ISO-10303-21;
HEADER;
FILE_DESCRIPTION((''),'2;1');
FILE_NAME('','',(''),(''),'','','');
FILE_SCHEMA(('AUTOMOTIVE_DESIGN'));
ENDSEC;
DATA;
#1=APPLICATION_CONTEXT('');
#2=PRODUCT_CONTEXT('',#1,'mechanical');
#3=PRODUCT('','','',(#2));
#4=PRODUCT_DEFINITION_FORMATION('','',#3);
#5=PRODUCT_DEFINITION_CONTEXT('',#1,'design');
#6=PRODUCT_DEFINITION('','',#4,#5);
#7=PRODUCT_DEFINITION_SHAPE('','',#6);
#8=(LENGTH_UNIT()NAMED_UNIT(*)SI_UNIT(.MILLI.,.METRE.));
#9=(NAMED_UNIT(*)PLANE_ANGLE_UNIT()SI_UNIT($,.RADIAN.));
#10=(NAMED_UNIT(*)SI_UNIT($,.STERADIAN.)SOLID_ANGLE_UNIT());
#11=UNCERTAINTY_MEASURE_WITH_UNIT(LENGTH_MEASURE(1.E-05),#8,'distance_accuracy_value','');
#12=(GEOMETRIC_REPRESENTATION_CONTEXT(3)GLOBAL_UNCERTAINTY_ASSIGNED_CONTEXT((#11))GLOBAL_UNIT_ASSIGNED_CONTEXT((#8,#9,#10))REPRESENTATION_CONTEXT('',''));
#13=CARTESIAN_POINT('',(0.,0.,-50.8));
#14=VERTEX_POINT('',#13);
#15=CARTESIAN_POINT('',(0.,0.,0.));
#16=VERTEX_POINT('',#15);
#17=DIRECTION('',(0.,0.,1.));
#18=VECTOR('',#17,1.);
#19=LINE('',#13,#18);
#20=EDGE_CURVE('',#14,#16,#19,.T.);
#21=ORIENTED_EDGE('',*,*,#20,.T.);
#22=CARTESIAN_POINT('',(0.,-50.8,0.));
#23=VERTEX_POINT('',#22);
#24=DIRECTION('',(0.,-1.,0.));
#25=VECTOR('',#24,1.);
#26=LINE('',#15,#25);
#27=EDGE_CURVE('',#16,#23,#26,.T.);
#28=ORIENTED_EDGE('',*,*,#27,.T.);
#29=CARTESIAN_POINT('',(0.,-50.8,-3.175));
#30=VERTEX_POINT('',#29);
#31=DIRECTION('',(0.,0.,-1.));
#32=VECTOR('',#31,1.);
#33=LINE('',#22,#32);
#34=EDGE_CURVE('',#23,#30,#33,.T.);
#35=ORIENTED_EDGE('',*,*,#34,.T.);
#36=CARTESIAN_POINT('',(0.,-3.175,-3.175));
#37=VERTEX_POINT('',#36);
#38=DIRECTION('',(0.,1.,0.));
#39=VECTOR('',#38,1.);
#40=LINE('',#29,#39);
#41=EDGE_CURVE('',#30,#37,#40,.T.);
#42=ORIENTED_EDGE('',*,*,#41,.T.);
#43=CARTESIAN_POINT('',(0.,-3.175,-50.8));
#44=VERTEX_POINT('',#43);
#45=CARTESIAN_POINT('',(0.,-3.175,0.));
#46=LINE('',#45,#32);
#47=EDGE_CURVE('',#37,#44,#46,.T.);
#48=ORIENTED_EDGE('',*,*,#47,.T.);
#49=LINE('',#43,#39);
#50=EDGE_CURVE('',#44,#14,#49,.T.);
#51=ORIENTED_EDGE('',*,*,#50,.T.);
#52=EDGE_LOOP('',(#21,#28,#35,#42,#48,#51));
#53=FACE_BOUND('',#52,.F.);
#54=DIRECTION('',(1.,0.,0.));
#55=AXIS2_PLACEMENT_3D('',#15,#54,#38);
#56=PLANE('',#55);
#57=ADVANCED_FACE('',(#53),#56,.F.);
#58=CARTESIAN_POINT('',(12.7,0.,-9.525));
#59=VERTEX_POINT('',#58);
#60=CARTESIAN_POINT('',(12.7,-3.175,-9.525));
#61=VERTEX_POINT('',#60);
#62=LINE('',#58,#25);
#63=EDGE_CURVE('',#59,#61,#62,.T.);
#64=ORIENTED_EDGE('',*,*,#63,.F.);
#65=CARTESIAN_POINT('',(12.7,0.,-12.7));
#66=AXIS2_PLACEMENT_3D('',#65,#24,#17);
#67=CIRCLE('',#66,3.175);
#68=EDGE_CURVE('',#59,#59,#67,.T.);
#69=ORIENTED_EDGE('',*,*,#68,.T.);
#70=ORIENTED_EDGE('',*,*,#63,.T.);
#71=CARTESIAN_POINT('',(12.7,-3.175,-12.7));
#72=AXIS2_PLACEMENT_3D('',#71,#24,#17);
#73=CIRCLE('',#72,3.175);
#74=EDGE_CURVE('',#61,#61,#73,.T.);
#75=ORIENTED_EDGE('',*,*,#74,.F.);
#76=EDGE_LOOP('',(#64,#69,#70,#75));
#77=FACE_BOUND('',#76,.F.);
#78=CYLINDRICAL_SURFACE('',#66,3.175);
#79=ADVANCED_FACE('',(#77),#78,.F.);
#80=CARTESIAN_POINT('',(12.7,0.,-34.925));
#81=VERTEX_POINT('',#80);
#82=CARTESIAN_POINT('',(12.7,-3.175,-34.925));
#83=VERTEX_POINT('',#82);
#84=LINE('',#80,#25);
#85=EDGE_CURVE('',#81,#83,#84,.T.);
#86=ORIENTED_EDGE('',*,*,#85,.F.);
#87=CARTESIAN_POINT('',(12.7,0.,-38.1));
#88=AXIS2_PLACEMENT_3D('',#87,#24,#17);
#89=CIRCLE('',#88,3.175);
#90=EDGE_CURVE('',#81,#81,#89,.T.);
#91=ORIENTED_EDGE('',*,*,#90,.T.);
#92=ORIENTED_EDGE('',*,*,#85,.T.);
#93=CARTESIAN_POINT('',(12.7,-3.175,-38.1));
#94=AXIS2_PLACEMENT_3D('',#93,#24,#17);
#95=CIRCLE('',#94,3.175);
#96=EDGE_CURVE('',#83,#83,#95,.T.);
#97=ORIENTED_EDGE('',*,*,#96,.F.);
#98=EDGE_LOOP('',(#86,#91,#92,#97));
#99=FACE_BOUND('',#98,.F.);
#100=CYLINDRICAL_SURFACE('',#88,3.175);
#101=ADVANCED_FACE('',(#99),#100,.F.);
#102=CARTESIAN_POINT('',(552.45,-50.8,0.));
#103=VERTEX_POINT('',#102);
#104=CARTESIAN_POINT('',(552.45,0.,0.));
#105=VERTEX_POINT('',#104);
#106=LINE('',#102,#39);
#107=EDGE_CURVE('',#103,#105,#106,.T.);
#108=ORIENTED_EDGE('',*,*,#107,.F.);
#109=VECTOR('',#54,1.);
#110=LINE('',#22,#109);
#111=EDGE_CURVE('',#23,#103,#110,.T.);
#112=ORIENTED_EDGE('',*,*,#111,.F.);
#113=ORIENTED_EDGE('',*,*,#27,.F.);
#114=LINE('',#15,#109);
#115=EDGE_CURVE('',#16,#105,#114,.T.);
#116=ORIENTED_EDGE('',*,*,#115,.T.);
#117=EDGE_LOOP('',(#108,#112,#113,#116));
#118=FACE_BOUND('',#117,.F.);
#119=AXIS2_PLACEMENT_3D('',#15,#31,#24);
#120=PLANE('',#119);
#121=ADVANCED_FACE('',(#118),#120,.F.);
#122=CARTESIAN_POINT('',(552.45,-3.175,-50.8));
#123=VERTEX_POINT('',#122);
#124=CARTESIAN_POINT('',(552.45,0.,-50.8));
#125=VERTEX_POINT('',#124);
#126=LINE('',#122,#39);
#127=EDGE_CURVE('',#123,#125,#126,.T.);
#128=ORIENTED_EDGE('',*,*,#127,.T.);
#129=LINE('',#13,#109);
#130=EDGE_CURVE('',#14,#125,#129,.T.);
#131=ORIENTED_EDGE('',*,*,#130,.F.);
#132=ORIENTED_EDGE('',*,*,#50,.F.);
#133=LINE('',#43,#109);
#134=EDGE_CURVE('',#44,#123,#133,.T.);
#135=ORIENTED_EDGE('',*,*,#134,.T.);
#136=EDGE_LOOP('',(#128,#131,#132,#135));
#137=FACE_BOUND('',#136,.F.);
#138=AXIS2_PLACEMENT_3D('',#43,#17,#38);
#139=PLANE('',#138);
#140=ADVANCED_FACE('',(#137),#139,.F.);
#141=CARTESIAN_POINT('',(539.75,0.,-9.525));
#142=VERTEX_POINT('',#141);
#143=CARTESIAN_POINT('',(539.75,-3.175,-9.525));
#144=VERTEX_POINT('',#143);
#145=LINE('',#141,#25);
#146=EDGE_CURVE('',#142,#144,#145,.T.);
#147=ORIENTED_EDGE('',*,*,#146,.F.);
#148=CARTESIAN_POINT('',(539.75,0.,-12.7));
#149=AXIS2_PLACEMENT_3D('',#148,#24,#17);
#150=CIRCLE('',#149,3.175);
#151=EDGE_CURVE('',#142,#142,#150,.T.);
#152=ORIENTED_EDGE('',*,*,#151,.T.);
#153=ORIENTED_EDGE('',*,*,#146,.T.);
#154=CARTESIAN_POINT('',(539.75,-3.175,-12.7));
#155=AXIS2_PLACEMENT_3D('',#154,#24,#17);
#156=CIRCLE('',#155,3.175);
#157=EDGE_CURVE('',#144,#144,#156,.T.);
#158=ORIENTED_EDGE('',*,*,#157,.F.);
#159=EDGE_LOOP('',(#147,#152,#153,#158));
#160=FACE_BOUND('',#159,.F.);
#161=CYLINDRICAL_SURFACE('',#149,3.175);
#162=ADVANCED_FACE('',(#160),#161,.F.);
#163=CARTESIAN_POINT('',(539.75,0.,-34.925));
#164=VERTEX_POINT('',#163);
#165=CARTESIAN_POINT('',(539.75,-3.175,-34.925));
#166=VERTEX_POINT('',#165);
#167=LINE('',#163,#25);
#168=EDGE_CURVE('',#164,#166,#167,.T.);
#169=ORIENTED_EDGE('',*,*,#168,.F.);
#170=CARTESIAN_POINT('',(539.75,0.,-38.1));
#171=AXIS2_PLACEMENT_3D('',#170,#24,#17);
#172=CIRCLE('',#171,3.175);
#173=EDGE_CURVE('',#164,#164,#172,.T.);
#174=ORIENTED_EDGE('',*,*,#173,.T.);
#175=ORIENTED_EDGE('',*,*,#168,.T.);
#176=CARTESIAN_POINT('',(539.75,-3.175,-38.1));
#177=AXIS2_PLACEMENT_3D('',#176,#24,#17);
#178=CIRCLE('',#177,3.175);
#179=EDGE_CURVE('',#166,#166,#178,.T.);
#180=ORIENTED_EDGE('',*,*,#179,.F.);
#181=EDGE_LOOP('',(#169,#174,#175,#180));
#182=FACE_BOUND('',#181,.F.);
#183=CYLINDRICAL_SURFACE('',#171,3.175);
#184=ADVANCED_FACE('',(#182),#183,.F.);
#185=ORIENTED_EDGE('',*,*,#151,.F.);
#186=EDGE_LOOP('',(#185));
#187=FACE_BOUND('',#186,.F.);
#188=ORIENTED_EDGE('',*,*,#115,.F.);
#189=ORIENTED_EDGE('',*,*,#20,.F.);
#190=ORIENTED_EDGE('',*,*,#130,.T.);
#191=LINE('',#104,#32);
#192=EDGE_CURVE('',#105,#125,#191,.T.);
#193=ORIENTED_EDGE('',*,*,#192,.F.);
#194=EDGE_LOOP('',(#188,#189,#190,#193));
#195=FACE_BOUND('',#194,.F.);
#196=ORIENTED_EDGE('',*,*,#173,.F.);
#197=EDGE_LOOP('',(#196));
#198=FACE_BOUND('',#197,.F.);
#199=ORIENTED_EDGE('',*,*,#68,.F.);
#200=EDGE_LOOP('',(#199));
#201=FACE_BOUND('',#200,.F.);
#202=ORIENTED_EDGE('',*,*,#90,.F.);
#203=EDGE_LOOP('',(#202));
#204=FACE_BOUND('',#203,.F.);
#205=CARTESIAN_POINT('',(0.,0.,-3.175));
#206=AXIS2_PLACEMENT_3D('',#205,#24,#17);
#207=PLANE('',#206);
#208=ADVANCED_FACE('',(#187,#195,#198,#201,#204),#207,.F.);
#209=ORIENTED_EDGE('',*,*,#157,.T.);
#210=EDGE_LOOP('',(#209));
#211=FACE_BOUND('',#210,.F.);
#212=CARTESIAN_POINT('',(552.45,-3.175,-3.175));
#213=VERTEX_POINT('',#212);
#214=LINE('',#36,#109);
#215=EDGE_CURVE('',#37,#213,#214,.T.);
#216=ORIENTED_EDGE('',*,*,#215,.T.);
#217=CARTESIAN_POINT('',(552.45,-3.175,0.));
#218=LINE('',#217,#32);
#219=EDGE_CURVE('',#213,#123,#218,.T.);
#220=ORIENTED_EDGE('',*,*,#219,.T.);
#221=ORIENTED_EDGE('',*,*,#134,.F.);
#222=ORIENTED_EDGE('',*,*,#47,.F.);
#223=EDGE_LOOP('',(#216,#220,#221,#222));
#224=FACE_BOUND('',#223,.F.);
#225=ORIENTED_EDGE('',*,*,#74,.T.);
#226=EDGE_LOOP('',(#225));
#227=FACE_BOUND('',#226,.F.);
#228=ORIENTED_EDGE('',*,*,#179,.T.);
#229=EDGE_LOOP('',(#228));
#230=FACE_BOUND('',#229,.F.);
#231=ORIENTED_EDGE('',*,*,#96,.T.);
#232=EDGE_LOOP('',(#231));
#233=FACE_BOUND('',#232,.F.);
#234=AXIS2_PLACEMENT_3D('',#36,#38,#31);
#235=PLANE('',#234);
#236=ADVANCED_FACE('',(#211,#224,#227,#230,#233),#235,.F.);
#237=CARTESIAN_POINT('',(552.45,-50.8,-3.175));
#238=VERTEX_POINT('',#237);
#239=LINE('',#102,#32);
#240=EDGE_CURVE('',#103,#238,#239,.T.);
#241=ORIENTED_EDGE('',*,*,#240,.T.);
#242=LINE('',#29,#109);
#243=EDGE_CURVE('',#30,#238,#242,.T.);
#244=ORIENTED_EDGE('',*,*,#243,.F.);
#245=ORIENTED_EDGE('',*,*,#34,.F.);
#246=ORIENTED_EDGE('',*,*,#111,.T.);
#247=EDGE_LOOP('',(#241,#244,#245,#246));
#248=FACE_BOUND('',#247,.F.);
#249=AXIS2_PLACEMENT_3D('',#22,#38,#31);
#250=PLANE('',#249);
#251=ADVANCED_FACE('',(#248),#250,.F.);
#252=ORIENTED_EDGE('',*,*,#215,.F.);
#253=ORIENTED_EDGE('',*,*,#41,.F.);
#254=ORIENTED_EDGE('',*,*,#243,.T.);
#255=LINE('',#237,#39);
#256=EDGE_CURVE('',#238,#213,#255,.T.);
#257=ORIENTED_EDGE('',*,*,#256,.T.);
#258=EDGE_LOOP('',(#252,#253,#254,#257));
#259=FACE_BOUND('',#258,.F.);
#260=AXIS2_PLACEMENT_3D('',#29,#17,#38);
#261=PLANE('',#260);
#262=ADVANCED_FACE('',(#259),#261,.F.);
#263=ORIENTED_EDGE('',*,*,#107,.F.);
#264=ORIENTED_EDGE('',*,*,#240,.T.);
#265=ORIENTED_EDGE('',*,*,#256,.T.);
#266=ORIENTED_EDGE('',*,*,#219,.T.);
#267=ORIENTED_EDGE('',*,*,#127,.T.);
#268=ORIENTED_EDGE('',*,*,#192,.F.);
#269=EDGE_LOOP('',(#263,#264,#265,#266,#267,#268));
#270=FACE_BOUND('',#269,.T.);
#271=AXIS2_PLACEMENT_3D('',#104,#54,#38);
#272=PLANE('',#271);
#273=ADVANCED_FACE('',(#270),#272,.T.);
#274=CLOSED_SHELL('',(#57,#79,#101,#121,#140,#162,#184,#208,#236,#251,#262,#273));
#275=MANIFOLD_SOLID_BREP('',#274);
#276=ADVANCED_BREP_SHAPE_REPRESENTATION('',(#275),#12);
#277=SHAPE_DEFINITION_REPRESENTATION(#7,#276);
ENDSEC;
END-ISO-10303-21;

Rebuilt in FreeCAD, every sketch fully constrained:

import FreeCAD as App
import Part
import Sketcher
Q = App.Units.Quantity


def add_polygon(sketch, points):
    """Adds a closed chain of lines whose ends are joined by coincident constraints."""
    first, n = sketch.GeometryCount, len(points)
    for a, b in zip(points, points[1:] + points[:1]):
        sketch.addGeometry(Part.LineSegment(App.Vector(*a, 0), App.Vector(*b, 0)), False)
    for i in range(n):
        sketch.addConstraint(Sketcher.Constraint("Coincident", first + i, 2, first + (i + 1) % n, 1))

doc = App.newDocument("Part")
body = doc.addObject("PartDesign::Body", "Body")

# Sketch on YZ plane
sketch1 = body.newObject("Sketcher::SketchObject", "Sketch")
sketch1.AttachmentSupport = (doc.getObject("YZ_Plane"), [""])
sketch1.MapMode = "FlatFace"
add_polygon(sketch1, [(0, 0), (-50.8, 0), (-50.8, -3.175), (-3.175, -3.175), (-3.175, -50.8), (0, -50.8)])  # lines 0-5
sketch1.addConstraint(Sketcher.Constraint("Horizontal", 0))
sketch1.addConstraint(Sketcher.Constraint("Vertical", 1))
sketch1.addConstraint(Sketcher.Constraint("Horizontal", 2))
sketch1.addConstraint(Sketcher.Constraint("Vertical", 3))
sketch1.addConstraint(Sketcher.Constraint("Horizontal", 4))
sketch1.addConstraint(Sketcher.Constraint("Vertical", 5))
sketch1.addConstraint(Sketcher.Constraint("Coincident", 5, 2, -1, 1))
sketch1.addConstraint(Sketcher.Constraint("Equal", 4, 1))
sketch1.addConstraint(Sketcher.Constraint("Equal", 2, 3))
sketch1.addConstraint(Sketcher.Constraint("DistanceX", 0, 2, 0, 1, Q("2 in")))
sketch1.addConstraint(Sketcher.Constraint("DistanceX", 4, 1, 4, 2, Q("0.125 in")))
pad1 = body.newObject("PartDesign::Pad", "Pad")
pad1.Profile = sketch1
pad1.Length = Q("21.75 in")

# Sketch on XZ plane
sketch2 = body.newObject("Sketcher::SketchObject", "Sketch001")
sketch2.AttachmentSupport = (doc.getObject("XZ_Plane"), [""])
sketch2.MapMode = "FlatFace"
sketch2.addGeometry(Part.Circle(App.Vector(12.7, -12.7, 0), App.Vector(0, 0, 1), 3.175), False)
sketch2.addGeometry(Part.Circle(App.Vector(12.7, -38.1, 0), App.Vector(0, 0, 1), 3.175), False)
sketch2.addGeometry(Part.Circle(App.Vector(539.75, -12.7, 0), App.Vector(0, 0, 1), 3.175), False)
sketch2.addGeometry(Part.Circle(App.Vector(539.75, -38.1, 0), App.Vector(0, 0, 1), 3.175), False)
sketch2.addConstraint(Sketcher.Constraint("Equal", 0, 1))
sketch2.addConstraint(Sketcher.Constraint("Equal", 1, 2))
sketch2.addConstraint(Sketcher.Constraint("Equal", 2, 3))
sketch2.addConstraint(Sketcher.Constraint("Horizontal", 0, 3, 2, 3))
sketch2.addConstraint(Sketcher.Constraint("Horizontal", 1, 3, 3, 3))
sketch2.addConstraint(Sketcher.Constraint("Vertical", 0, 3, 1, 3))
sketch2.addConstraint(Sketcher.Constraint("Vertical", 2, 3, 3, 3))
sketch2.addConstraint(Sketcher.Constraint("Diameter", 0, Q("0.25 in")))
sketch2.addConstraint(Sketcher.Constraint("DistanceY", 1, 3, 0, 3, Q("1 in")))
sketch2.addConstraint(Sketcher.Constraint("DistanceX", -1, 1, 0, 3, Q("0.5 in")))
sketch2.addConstraint(Sketcher.Constraint("DistanceY", 0, 3, -1, 1, Q("0.5 in")))
sketch2.addConstraint(Sketcher.Constraint("DistanceX", -1, 1, 2, 3, Q("21.25 in")))
doc.recompute()
hole = body.newObject("PartDesign::Hole", "Hole")
hole.Profile = sketch2
hole.ThreadType = "None"
hole.Diameter = Q("0.25 in")
hole.DepthType = "ThroughAll"
hole.Reversed = True

doc.recompute()
